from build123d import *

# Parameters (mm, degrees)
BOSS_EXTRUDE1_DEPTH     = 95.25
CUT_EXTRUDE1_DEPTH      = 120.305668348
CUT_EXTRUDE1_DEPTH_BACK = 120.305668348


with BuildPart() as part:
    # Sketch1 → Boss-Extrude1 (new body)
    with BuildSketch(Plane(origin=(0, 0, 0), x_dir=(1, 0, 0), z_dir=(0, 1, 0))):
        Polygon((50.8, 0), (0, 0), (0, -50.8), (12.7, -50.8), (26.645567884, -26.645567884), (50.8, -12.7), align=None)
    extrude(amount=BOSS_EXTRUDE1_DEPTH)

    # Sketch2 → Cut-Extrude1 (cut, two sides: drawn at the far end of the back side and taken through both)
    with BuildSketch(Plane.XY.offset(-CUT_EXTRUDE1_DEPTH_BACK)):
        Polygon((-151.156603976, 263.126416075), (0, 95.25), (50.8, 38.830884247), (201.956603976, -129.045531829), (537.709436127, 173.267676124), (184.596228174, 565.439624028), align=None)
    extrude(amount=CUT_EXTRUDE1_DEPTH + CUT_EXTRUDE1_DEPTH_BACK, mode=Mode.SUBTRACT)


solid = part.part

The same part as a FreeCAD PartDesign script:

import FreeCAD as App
import Part
import Sketcher
from FreeCAD import Vector
Q = App.Units.Quantity


def add_polygon(sketch, points):
    """Adds a closed chain of lines whose ends are joined by coincident constraints."""
    first, n = sketch.GeometryCount, len(points)
    for a, b in zip(points, points[1:] + points[:1]):
        sketch.addGeometry(Part.LineSegment(App.Vector(*a, 0), App.Vector(*b, 0)), False)
    for i in range(n):
        sketch.addConstraint(Sketcher.Constraint("Coincident", first + i, 2, first + (i + 1) % n, 1))

doc = App.newDocument("Part")
body = doc.addObject("PartDesign::Body", "Body")

sketch1 = body.newObject("Sketcher::SketchObject", "Sketch")
sketch1.AttachmentSupport = (doc.getObject("XZ_Plane"), [""])
sketch1.MapMode = "FlatFace"
add_polygon(sketch1, [(50.8, 0), (0, 0), (0, 50.8), (12.7, 50.8), (26.645568, 26.645568), (50.8, 12.7)])
sketch1.addConstraint(Sketcher.Constraint("Horizontal", 0))
sketch1.addConstraint(Sketcher.Constraint("Vertical", 1))
sketch1.addConstraint(Sketcher.Constraint("Horizontal", 2))
sketch1.addConstraint(Sketcher.Constraint("Vertical", 5))
sketch1.addConstraint(Sketcher.Constraint("Coincident", 0, 2, -1, 1))
sketch1.addConstraint(Sketcher.Constraint("Equal", 0, 1))
sketch1.addConstraint(Sketcher.Constraint("Equal", 2, 5))
sketch1.addConstraint(Sketcher.Constraint("Equal", 3, 4))
sketch1.addConstraint(Sketcher.Constraint("DistanceX", 0, 2, 0, 1, Q("2 in")))
sketch1.addConstraint(Sketcher.Constraint("DistanceX", 2, 1, 2, 2, Q("0.5 in")))
sketch1.addConstraint(Sketcher.Constraint("Angle", 3, Q("-60 deg")))
pad1 = body.newObject("PartDesign::Pad", "Pad")
pad1.Profile = sketch1
pad1.Length = Q("3.75 in")
pad1.Reversed = True

sketch2 = body.newObject("Sketcher::SketchObject", "Sketch001")
sketch2.AttachmentSupport = (doc.getObject("XY_Plane"), [""])
sketch2.MapMode = "FlatFace"
add_polygon(sketch2, [(-151.156604, 263.126416), (0, 95.25), (50.8, 38.830884), (201.956604, -129.045532), (537.709436, 173.267676), (184.596228, 565.439624)])
sketch2.addConstraint(Sketcher.Constraint("PointOnObject", 0, 2, -2))
sketch2.addConstraint(Sketcher.Constraint("Parallel", 0, 1))
sketch2.addConstraint(Sketcher.Constraint("Parallel", 1, 2))
sketch2.addConstraint(Sketcher.Constraint("Perpendicular", 2, 3))
sketch2.addConstraint(Sketcher.Constraint("Perpendicular", 3, 4))
sketch2.addConstraint(Sketcher.Constraint("Perpendicular", 4, 5))
sketch2.addConstraint(Sketcher.Constraint("Equal", 0, 2))
sketch2.addConstraint(Sketcher.Constraint("DistanceX", -1, 1, 1, 2, Q("2 in")))
sketch2.addConstraint(Sketcher.Constraint("Angle", 0, Q("-48 deg")))
sketch2.addConstraint(Sketcher.Constraint("DistanceY", -1, 1, 0, 2, Q("3.75 in")))
sketch2.addConstraint(Sketcher.Constraint("Distance", 0, 225.9))
sketch2.addConstraint(Sketcher.Constraint("Distance", 3, 451.8))
pocket1 = body.newObject("PartDesign::Pocket", "Pocket")
pocket1.Profile = sketch2
pocket1.Type = "ThroughAll"
pocket1.Midplane = True

doc.recompute()
